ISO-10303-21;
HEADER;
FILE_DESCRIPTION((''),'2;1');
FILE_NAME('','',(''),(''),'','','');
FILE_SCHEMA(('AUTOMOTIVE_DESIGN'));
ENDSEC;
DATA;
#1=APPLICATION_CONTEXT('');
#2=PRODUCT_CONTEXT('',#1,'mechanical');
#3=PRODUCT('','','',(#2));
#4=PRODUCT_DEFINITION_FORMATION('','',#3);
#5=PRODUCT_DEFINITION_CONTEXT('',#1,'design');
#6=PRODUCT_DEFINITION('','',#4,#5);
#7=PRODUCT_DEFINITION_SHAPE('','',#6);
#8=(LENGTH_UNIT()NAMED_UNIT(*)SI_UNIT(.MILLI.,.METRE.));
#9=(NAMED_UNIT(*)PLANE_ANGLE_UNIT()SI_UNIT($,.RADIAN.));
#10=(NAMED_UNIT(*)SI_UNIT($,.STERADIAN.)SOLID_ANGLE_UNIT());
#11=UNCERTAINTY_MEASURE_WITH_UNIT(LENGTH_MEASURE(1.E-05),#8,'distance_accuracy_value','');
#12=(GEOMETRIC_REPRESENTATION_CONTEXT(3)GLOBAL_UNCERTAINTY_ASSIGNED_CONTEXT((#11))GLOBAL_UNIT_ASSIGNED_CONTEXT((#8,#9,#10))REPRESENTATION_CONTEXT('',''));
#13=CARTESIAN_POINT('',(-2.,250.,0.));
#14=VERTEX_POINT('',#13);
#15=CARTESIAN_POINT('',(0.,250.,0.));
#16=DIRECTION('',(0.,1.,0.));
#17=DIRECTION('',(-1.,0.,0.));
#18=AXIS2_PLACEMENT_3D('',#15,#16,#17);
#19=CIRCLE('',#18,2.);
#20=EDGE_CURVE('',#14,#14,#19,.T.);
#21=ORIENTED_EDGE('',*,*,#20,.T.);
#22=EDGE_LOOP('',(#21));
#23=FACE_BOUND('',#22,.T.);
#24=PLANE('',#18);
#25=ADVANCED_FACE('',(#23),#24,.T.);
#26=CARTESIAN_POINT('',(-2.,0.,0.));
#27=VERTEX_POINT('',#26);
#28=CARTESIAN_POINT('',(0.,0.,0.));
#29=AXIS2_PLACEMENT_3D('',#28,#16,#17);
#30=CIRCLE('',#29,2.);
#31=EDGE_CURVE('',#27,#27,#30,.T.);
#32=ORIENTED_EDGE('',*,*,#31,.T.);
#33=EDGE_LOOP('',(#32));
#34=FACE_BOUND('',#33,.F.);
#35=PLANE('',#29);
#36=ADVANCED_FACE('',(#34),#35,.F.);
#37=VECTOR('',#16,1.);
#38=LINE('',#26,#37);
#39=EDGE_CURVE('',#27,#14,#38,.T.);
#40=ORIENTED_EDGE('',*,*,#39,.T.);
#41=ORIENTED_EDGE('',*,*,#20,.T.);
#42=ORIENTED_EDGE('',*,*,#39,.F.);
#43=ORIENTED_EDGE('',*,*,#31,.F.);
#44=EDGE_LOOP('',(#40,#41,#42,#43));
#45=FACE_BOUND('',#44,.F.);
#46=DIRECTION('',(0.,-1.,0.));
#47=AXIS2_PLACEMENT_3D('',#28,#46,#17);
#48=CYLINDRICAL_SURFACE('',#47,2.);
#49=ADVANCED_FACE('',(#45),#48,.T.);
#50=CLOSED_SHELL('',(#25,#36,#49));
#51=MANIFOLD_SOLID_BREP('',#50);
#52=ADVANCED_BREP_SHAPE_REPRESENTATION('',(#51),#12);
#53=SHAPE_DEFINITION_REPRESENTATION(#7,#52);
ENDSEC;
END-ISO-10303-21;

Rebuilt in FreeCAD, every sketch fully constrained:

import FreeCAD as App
import Part
import Sketcher

doc = App.newDocument("Part")
body = doc.addObject("PartDesign::Body", "Body")

# Sketch on XZ plane
sketch1 = doc.addObject("Sketcher::SketchObject", "Sketch")
body.addObject(sketch1)
sketch1.AttachmentSupport = (doc.XZ_Plane, [""])
sketch1.MapMode = "FlatFace"
sketch1.addGeometry(Part.Circle(App.Vector(0, 0, 0), App.Vector(0, 0, 1), 2), False)
sketch1.addConstraint([
    Sketcher.Constraint("Coincident", 0, 3, -1, 1),
    Sketcher.Constraint("Diameter", 0, 4.0),
])
pad1 = doc.addObject("PartDesign::Pad", "Pad")
body.addObject(pad1)
pad1.Profile = sketch1
pad1.Length = 250
pad1.Reversed = True

doc.recompute()
